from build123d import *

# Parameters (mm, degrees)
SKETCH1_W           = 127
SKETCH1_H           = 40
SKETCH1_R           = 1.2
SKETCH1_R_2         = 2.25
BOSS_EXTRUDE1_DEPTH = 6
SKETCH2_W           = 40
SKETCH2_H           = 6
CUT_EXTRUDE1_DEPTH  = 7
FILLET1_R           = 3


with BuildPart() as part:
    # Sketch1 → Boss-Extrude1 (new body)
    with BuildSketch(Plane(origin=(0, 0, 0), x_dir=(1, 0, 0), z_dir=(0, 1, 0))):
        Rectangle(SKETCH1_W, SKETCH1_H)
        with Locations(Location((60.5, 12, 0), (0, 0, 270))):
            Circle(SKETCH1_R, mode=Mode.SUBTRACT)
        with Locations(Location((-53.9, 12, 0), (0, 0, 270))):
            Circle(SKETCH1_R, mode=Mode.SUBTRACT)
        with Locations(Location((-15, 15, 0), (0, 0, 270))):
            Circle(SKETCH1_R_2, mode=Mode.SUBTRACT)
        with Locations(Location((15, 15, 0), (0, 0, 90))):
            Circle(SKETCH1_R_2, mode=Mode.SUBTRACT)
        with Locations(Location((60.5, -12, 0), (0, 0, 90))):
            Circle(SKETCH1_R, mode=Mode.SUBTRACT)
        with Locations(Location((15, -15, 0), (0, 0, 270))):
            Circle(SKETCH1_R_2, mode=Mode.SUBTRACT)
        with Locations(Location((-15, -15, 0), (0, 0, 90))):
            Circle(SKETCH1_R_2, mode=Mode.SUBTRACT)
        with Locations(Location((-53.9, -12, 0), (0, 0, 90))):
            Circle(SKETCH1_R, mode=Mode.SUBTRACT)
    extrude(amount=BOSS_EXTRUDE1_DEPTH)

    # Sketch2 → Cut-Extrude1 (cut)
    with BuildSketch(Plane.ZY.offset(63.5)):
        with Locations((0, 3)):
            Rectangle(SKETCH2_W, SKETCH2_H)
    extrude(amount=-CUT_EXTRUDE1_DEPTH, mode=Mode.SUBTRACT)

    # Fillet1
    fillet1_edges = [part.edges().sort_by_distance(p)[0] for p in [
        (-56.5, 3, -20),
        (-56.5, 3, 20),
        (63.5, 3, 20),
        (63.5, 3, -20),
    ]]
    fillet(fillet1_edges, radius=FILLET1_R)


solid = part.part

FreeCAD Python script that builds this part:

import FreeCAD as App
import Part
import Sketcher

V = App.Vector
Q = App.Units.Quantity


def edges_at(feature, points):
    """Names of the edges that pass closest to the given points."""
    edges = feature.Shape.Edges
    near = lambda p: min(range(len(edges)), key=lambda i: edges[i].distToShape(Part.Vertex(*p))[0])
    return sorted({f"Edge{near(p) + 1}" for p in points})

doc = App.newDocument("Part")
body = doc.addObject("PartDesign::Body", "Body")

sketch1 = body.newObject("Sketcher::SketchObject", "Sketch")
sketch1.AttachmentSupport = (doc.getObject("XZ_Plane"), [""])
sketch1.MapMode = "FlatFace"
sketch1.addGeometry(Part.LineSegment(V(-63.5, -20, 0), V(-63.5, 20, 0)), False)
sketch1.addGeometry(Part.LineSegment(V(-63.5, 20, 0), V(63.5, 20, 0)), False)
sketch1.addGeometry(Part.LineSegment(V(63.5, 20, 0), V(63.5, -20, 0)), False)
sketch1.addGeometry(Part.LineSegment(V(63.5, -20, 0), V(-63.5, -20, 0)), False)
sketch1.addGeometry(Part.Circle(V(-53.9, 12, 0), V(0, 0, 1), 1.2), False)
sketch1.addGeometry(Part.Circle(V(-15, 15, 0), V(0, 0, 1), 2.25), False)
sketch1.addGeometry(Part.Circle(V(15, 15, 0), V(0, 0, 1), 2.25), False)
sketch1.addGeometry(Part.Circle(V(60.5, 12, 0), V(0, 0, 1), 1.2), False)
sketch1.addGeometry(Part.Circle(V(-53.9, -12, 0), V(0, 0, 1), 1.2), False)
sketch1.addGeometry(Part.Circle(V(-15, -15, 0), V(0, 0, 1), 2.25), False)
sketch1.addGeometry(Part.Circle(V(15, -15, 0), V(0, 0, 1), 2.25), False)
sketch1.addGeometry(Part.Circle(V(60.5, -12, 0), V(0, 0, 1), 1.2), False)
sketch1.addConstraint(Sketcher.Constraint("Coincident", 0, 2, 1, 1))
sketch1.addConstraint(Sketcher.Constraint("Coincident", 1, 2, 2, 1))
sketch1.addConstraint(Sketcher.Constraint("Coincident", 2, 2, 3, 1))
sketch1.addConstraint(Sketcher.Constraint("Coincident", 3, 2, 0, 1))
sketch1.addConstraint(Sketcher.Constraint("Vertical", 0))
sketch1.addConstraint(Sketcher.Constraint("Horizontal", 1))
sketch1.addConstraint(Sketcher.Constraint("Vertical", 2))
sketch1.addConstraint(Sketcher.Constraint("Horizontal", 3))
sketch1.addConstraint(Sketcher.Constraint("Equal", 5, 6))
sketch1.addConstraint(Sketcher.Constraint("Equal", 4, 7))
sketch1.addConstraint(Sketcher.Constraint("Equal", 7, 8))
sketch1.addConstraint(Sketcher.Constraint("Equal", 6, 9))
sketch1.addConstraint(Sketcher.Constraint("Equal", 9, 10))
sketch1.addConstraint(Sketcher.Constraint("Equal", 8, 11))
sketch1.addConstraint(Sketcher.Constraint("Symmetric", 6, 3, 9, 3, -1, 1))
sketch1.addConstraint(Sketcher.Constraint("Symmetric", 5, 3, 10, 3, -1, 1))
sketch1.addConstraint(Sketcher.Constraint("Symmetric", 0, 2, 2, 2, -1, 1))
sketch1.addConstraint(Sketcher.Constraint("Symmetric", 5, 3, 6, 3, -2))
sketch1.addConstraint(Sketcher.Constraint("Symmetric", 4, 3, 8, 3, -1))
sketch1.addConstraint(Sketcher.Constraint("Symmetric", 7, 3, 11, 3, -1))
sketch1.addConstraint(Sketcher.Constraint("Horizontal", 4, 3, 7, 3))
sketch1.addConstraint(Sketcher.Constraint("Diameter", 4, Q("2.4 mm")))
sketch1.addConstraint(Sketcher.Constraint("Diameter", 5, Q("4.5 mm")))
sketch1.addConstraint(Sketcher.Constraint("DistanceX", 1, 1, 1, 2, Q("127 mm")))
sketch1.addConstraint(Sketcher.Constraint("DistanceY", 0, 1, 0, 2, Q("40 mm")))
sketch1.addConstraint(Sketcher.Constraint("DistanceY", -1, 1, 4, 3, Q("12 mm")))
sketch1.addConstraint(Sketcher.Constraint("DistanceX", 5, 3, -1, 1, Q("15 mm")))
sketch1.addConstraint(Sketcher.Constraint("DistanceY", -1, 1, 5, 3, Q("15 mm")))
sketch1.addConstraint(Sketcher.Constraint("DistanceX", 7, 3, 1, 2, Q("3 mm")))
sketch1.addConstraint(Sketcher.Constraint("DistanceX", 4, 3, -1, 1, Q("53.9 mm")))
pad1 = body.newObject("PartDesign::Pad", "Pad")
pad1.Profile = sketch1
pad1.Length = 6
pad1.Reversed = True

sketch2 = body.newObject("Sketcher::SketchObject", "Sketch001")
sketch2.AttachmentSupport = (doc.getObject("YZ_Plane"), [""])
sketch2.MapMode = "FlatFace"
sketch2.AttachmentOffset = App.Placement(V(0, 0, -63.5), App.Rotation())
sketch2.addGeometry(Part.LineSegment(V(6, -20, 0), V(0, -20, 0)), False)
sketch2.addGeometry(Part.LineSegment(V(0, -20, 0), V(0, 20, 0)), False)
sketch2.addGeometry(Part.LineSegment(V(0, 20, 0), V(6, 20, 0)), False)
sketch2.addGeometry(Part.LineSegment(V(6, 20, 0), V(6, -20, 0)), False)
sketch2.addConstraint(Sketcher.Constraint("Coincident", 0, 2, 1, 1))
sketch2.addConstraint(Sketcher.Constraint("Coincident", 1, 2, 2, 1))
sketch2.addConstraint(Sketcher.Constraint("Coincident", 2, 2, 3, 1))
sketch2.addConstraint(Sketcher.Constraint("Coincident", 3, 2, 0, 1))
sketch2.addConstraint(Sketcher.Constraint("Horizontal", 0))
sketch2.addConstraint(Sketcher.Constraint("Vertical", 1))
sketch2.addConstraint(Sketcher.Constraint("Horizontal", 2))
sketch2.addConstraint(Sketcher.Constraint("Vertical", 3))
sketch2.addConstraint(Sketcher.Constraint("Symmetric", 0, 2, 1, 2, -1, 1))
sketch2.addConstraint(Sketcher.Constraint("DistanceX", 0, 2, 0, 1, Q("6 mm")))
sketch2.addConstraint(Sketcher.Constraint("DistanceY", 1, 1, 1, 2, Q("40 mm")))
pocket1 = body.newObject("PartDesign::Pocket", "Pocket")
pocket1.Profile = sketch2
pocket1.Length = 7
pocket1.Reversed = True
doc.recompute()

fillet = body.newObject("PartDesign::Fillet", "Fillet")
fillet.Base = (pocket1, edges_at(pocket1, [
    (-56.5, 3, -20),
    (-56.5, 3, 20),
    (63.5, 3, 20),
    (63.5, 3, -20),
]))
fillet.Radius = 3

doc.recompute()
